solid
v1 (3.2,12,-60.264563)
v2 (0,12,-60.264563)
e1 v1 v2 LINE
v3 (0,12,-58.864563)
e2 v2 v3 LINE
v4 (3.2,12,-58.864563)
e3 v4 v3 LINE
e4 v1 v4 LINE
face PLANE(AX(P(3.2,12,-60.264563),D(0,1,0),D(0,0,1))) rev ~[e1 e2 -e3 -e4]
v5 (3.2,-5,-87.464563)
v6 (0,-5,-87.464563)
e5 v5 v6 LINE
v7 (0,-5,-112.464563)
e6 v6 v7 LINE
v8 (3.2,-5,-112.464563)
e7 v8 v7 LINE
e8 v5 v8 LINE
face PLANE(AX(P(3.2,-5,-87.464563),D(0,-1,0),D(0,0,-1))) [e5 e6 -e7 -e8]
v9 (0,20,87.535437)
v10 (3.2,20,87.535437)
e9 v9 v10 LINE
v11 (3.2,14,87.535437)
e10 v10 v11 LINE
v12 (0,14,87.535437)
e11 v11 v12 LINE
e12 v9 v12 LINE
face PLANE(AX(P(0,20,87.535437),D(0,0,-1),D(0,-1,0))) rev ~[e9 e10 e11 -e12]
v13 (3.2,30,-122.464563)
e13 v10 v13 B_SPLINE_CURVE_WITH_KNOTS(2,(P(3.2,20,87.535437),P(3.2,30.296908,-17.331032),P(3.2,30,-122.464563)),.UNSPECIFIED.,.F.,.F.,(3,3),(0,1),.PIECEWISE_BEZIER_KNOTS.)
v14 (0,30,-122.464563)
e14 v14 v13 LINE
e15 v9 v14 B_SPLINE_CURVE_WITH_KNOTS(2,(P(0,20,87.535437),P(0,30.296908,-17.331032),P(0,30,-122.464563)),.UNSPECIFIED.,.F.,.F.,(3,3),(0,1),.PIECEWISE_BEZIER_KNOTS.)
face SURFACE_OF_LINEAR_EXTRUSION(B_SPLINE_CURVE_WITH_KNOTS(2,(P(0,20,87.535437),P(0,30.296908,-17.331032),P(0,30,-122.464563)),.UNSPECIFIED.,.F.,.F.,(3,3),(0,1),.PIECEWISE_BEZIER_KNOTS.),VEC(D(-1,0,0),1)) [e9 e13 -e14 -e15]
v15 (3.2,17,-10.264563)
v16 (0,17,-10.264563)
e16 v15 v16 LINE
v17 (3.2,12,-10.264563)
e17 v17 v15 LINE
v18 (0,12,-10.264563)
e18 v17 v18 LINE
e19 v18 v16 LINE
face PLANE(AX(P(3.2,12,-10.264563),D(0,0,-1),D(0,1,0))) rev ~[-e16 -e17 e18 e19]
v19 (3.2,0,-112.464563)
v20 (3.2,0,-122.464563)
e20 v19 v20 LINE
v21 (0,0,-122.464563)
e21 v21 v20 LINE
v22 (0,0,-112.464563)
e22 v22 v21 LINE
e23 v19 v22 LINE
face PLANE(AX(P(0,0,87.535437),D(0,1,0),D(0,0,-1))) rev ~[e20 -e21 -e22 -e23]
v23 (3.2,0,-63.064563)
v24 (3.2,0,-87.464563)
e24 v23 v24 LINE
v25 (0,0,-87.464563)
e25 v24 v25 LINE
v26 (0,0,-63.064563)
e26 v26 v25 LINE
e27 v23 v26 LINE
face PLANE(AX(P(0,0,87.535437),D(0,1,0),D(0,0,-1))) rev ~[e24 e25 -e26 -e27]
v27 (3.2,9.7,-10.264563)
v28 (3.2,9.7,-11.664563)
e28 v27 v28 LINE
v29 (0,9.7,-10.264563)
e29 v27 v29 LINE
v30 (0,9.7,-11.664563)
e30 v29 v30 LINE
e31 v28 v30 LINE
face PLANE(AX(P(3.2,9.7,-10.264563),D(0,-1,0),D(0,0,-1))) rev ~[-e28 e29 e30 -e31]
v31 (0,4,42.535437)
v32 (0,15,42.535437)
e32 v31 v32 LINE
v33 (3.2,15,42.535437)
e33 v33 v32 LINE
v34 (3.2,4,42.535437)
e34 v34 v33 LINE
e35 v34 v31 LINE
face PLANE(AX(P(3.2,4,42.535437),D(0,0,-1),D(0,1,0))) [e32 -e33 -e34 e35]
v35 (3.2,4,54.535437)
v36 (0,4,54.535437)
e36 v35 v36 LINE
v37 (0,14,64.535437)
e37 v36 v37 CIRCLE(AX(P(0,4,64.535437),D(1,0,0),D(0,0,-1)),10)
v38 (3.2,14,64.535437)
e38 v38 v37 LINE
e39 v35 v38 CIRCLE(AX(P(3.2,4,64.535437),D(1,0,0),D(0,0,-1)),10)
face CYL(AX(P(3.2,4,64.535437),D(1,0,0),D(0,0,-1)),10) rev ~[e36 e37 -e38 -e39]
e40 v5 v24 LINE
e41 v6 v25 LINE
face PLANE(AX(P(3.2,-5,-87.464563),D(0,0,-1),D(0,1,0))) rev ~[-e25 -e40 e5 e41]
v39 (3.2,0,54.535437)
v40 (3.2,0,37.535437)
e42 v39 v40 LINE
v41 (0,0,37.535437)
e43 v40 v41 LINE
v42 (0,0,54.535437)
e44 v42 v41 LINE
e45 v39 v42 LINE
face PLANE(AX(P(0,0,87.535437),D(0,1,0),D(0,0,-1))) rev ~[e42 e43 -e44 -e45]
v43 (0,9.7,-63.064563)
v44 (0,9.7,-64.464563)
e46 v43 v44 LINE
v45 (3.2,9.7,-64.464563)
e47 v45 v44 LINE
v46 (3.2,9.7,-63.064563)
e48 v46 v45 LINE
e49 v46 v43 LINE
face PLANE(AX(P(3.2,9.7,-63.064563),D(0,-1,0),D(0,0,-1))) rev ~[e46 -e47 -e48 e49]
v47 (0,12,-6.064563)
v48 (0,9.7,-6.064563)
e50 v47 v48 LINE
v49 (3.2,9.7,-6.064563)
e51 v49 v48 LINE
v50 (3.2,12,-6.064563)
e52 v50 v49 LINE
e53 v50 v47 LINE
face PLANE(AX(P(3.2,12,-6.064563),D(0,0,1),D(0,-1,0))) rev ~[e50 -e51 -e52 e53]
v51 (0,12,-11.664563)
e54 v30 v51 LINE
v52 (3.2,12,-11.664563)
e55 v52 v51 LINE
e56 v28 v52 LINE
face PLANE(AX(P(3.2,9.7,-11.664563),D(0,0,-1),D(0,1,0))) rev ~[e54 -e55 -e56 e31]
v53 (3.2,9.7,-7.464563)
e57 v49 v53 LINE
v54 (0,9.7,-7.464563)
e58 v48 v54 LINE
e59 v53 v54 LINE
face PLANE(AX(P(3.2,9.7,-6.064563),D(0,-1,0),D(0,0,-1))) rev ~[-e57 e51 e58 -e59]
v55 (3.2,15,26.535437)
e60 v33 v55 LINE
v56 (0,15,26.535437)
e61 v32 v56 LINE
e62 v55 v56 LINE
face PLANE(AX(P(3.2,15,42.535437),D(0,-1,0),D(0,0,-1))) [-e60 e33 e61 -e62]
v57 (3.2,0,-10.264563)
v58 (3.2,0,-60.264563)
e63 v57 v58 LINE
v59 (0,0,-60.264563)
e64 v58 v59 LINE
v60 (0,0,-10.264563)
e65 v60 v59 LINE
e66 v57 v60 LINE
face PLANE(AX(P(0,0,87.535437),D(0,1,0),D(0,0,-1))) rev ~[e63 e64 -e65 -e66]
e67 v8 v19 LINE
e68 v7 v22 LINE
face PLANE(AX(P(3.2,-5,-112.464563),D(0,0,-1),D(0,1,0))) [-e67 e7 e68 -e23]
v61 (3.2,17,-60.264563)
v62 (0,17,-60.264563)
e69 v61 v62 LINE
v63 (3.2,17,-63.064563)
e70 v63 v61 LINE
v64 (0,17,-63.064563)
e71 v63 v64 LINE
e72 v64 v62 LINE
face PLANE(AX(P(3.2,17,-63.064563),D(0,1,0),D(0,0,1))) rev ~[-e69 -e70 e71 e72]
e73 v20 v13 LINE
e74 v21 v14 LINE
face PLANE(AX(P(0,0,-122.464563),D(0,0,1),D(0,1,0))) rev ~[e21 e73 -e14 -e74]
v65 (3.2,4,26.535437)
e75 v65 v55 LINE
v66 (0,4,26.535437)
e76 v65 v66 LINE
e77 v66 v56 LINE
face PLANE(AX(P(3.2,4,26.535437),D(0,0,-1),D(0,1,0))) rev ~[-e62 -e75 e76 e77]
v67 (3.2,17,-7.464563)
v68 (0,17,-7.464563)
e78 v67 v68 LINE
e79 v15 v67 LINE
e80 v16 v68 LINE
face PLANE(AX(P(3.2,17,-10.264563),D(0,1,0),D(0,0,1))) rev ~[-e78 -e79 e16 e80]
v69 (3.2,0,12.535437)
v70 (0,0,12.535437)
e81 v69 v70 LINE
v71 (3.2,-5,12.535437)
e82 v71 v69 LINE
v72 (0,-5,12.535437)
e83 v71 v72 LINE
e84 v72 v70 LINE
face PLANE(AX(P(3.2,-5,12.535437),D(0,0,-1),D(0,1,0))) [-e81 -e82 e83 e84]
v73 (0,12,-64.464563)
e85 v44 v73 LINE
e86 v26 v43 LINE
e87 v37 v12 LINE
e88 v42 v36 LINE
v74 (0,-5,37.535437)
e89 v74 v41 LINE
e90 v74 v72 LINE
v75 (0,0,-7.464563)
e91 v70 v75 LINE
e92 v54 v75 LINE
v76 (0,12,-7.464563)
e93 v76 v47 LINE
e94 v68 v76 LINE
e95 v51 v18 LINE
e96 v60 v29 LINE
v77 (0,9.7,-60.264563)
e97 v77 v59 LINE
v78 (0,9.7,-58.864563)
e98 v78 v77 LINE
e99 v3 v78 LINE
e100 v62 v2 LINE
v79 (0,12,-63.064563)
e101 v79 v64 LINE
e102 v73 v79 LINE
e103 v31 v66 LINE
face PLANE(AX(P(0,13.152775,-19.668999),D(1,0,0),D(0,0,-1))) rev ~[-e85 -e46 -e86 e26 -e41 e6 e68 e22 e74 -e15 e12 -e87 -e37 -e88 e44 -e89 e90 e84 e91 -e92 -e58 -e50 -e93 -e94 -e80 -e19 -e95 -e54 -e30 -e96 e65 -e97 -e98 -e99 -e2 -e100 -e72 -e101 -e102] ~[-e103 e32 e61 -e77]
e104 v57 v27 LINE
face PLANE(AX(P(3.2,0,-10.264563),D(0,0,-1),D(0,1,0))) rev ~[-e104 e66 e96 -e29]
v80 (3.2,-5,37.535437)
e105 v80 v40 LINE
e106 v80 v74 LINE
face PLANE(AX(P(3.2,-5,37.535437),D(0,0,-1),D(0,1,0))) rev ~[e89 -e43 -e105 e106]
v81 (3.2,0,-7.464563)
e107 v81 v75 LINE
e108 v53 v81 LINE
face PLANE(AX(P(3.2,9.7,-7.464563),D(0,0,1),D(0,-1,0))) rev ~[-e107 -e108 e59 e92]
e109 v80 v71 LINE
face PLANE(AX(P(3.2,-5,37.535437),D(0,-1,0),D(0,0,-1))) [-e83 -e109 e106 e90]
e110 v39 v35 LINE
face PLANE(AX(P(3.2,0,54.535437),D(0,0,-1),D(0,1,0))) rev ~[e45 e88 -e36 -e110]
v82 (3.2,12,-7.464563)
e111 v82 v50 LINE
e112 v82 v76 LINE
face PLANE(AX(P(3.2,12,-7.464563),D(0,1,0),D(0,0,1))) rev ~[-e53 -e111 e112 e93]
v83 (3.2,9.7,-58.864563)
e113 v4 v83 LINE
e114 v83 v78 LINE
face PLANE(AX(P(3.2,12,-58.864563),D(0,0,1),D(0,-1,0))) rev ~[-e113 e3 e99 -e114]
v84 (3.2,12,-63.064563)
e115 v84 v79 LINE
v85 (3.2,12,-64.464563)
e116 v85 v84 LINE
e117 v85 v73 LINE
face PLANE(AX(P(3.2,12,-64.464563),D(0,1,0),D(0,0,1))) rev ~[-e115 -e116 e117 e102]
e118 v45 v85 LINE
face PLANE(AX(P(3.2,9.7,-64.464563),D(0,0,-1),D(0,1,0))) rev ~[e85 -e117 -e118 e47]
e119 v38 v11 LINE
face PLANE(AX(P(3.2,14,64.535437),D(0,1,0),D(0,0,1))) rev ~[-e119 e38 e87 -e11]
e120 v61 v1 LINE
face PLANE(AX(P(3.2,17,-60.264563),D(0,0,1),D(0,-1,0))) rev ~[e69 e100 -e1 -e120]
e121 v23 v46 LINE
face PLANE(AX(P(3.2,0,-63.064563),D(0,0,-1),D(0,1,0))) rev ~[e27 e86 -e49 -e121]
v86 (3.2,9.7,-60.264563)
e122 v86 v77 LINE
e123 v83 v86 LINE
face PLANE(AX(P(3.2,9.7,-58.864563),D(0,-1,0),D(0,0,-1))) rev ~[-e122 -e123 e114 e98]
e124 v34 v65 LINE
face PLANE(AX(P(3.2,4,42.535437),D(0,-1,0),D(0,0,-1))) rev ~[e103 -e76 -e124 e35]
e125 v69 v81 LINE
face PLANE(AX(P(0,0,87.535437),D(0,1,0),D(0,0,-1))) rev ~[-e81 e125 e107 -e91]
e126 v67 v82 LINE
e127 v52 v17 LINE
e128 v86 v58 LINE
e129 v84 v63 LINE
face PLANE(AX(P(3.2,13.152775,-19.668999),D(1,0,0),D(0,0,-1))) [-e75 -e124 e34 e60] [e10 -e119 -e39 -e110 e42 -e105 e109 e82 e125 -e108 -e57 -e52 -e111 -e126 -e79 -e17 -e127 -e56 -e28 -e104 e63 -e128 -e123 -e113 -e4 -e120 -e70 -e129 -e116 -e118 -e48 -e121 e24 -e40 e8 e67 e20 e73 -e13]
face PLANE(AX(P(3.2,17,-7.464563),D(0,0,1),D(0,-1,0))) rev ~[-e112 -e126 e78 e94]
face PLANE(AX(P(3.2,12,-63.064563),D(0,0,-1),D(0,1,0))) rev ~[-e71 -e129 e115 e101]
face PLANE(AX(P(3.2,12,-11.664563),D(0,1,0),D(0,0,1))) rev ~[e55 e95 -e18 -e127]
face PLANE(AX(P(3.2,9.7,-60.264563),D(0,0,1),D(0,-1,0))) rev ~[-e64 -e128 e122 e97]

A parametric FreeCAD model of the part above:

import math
import FreeCAD as App
import Part
import Sketcher

V = App.Vector

doc = App.newDocument("Part")
body = doc.addObject("PartDesign::Body", "Body")

# Sketch on YZ plane
sketch1 = doc.addObject("Sketcher::SketchObject", "Sketch")
body.addObject(sketch1)
sketch1.AttachmentSupport = (doc.YZ_Plane, [""])
sketch1.MapMode = "FlatFace"
sketch1.addGeometry(Part.LineSegment(V(0, 87.535437, 0), V(0, -122.464563, 0)), False)
sketch1.addGeometry(Part.LineSegment(V(0, -122.464563, 0), V(30, -122.464563, 0)), False)
sketch1.addGeometry(Part.BSplineCurve([V(20, 87.535437, 0), V(30.296908, -17.331032, 0), V(30, -122.464563, 0)], [3, 3], [0, 1], False, 2, [1, 1, 1], False), False)
sketch1.addGeometry(Part.LineSegment(V(20, 87.535437, 0), V(0, 87.535437, 0)), False)
sketch1.addConstraint(Sketcher.Constraint("Block", 2))
sketch1.addConstraint(Sketcher.Constraint("Coincident", 0, 2, 1, 1))
sketch1.addConstraint(Sketcher.Constraint("Coincident", 1, 2, 2, 2))
sketch1.addConstraint(Sketcher.Constraint("Coincident", 2, 1, 3, 1))
sketch1.addConstraint(Sketcher.Constraint("Coincident", 3, 2, 0, 1))
sketch1.addConstraint(Sketcher.Constraint("Vertical", 0))
sketch1.addConstraint(Sketcher.Constraint("Horizontal", 1))
sketch1.addConstraint(Sketcher.Constraint("Horizontal", 3))
sketch1.addConstraint(Sketcher.Constraint("PointOnObject", 0, 2, -2))
pad1 = doc.addObject("PartDesign::Pad", "Pad")
body.addObject(pad1)
pad1.Profile = sketch1
pad1.Length = 3.2

# Sketch on YZ plane
sketch2 = doc.addObject("Sketcher::SketchObject", "Sketch001")
body.addObject(sketch2)
sketch2.AttachmentSupport = (doc.YZ_Plane, [""])
sketch2.MapMode = "FlatFace"
sketch2.AttachmentOffset = App.Placement(V(0, 0, 3.2), App.Rotation())
sketch2.addGeometry(Part.LineSegment(V(0, 87.535437, 0), V(0, 54.535437, 0)), False)
sketch2.addGeometry(Part.LineSegment(V(0, 54.535437, 0), V(4, 54.535437, 0)), False)
sketch2.addGeometry(Part.ArcOfCircle(Part.Circle(V(4, 64.535437, 0), V(0, 0, 1), 10), math.radians(-90), math.radians(0)), False)
sketch2.addGeometry(Part.LineSegment(V(14, 64.535437, 0), V(14, 87.535437, 0)), False)
sketch2.addGeometry(Part.LineSegment(V(14, 87.535437, 0), V(0, 87.535437, 0)), False)
sketch2.addConstraint(Sketcher.Constraint("Coincident", 0, 2, 1, 1))
sketch2.addConstraint(Sketcher.Constraint("Tangent", 1, 2, 2, 1))
sketch2.addConstraint(Sketcher.Constraint("Tangent", 2, 2, 3, 1))
sketch2.addConstraint(Sketcher.Constraint("Coincident", 3, 2, 4, 1))
sketch2.addConstraint(Sketcher.Constraint("Coincident", 4, 2, 0, 1))
sketch2.addConstraint(Sketcher.Constraint("Vertical", 0))
sketch2.addConstraint(Sketcher.Constraint("Horizontal", 1))
sketch2.addConstraint(Sketcher.Constraint("Vertical", 3))
sketch2.addConstraint(Sketcher.Constraint("Horizontal", 4))
sketch2.addConstraint(Sketcher.Constraint("PointOnObject", 0, 2, -2))
sketch2.addConstraint(Sketcher.Constraint("Radius", 2, 10.0))
sketch2.addConstraint(Sketcher.Constraint("DistanceX", 1, 1, 1, 2, 4.0))
sketch2.addConstraint(Sketcher.Constraint("DistanceY", 0, 2, 0, 1, 33.0))
sketch2.addConstraint(Sketcher.Constraint("DistanceY", -1, 1, 2, 3, 64.535437))
pocket1 = doc.addObject("PartDesign::Pocket", "Pocket")
body.addObject(pocket1)
pocket1.Profile = sketch2
pocket1.Length = 3.2

# Sketch on YZ plane
sketch3 = doc.addObject("Sketcher::SketchObject", "Sketch002")
body.addObject(sketch3)
sketch3.AttachmentSupport = (doc.YZ_Plane, [""])
sketch3.MapMode = "FlatFace"
sketch3.AttachmentOffset = App.Placement(V(0, 0, 3.2), App.Rotation())
sketch3.addGeometry(Part.LineSegment(V(0, 37.535437, 0), V(-5, 37.535437, 0)), False)
sketch3.addGeometry(Part.LineSegment(V(-5, 37.535437, 0), V(-5, 12.535437, 0)), False)
sketch3.addGeometry(Part.LineSegment(V(-5, 12.535437, 0), V(0, 12.535437, 0)), False)
sketch3.addGeometry(Part.LineSegment(V(0, 12.535437, 0), V(0, 37.535437, 0)), False)
sketch3.addGeometry(Part.LineSegment(V(0, -87.464563, 0), V(-5, -87.464563, 0)), False)
sketch3.addGeometry(Part.LineSegment(V(-5, -87.464563, 0), V(-5, -112.464563, 0)), False)
sketch3.addGeometry(Part.LineSegment(V(-5, -112.464563, 0), V(0, -112.464563, 0)), False)
sketch3.addGeometry(Part.LineSegment(V(0, -112.464563, 0), V(0, -87.464563, 0)), False)
sketch3.addConstraint(Sketcher.Constraint("Coincident", 0, 2, 1, 1))
sketch3.addConstraint(Sketcher.Constraint("Coincident", 1, 2, 2, 1))
sketch3.addConstraint(Sketcher.Constraint("Coincident", 2, 2, 3, 1))
sketch3.addConstraint(Sketcher.Constraint("Coincident", 3, 2, 0, 1))
sketch3.addConstraint(Sketcher.Constraint("Coincident", 4, 2, 5, 1))
sketch3.addConstraint(Sketcher.Constraint("Coincident", 5, 2, 6, 1))
sketch3.addConstraint(Sketcher.Constraint("Coincident", 6, 2, 7, 1))
sketch3.addConstraint(Sketcher.Constraint("Coincident", 7, 2, 4, 1))
sketch3.addConstraint(Sketcher.Constraint("Horizontal", 0))
sketch3.addConstraint(Sketcher.Constraint("Vertical", 1))
sketch3.addConstraint(Sketcher.Constraint("Horizontal", 2))
sketch3.addConstraint(Sketcher.Constraint("Vertical", 3))
sketch3.addConstraint(Sketcher.Constraint("Horizontal", 4))
sketch3.addConstraint(Sketcher.Constraint("Vertical", 5))
sketch3.addConstraint(Sketcher.Constraint("Horizontal", 6))
sketch3.addConstraint(Sketcher.Constraint("Vertical", 7))
sketch3.addConstraint(Sketcher.Constraint("PointOnObject", 2, 2, -2))
sketch3.addConstraint(Sketcher.Constraint("PointOnObject", 6, 2, -2))
sketch3.addConstraint(Sketcher.Constraint("Vertical", 1, 2, 4, 2))
sketch3.addConstraint(Sketcher.Constraint("Equal", 3, 5))
sketch3.addConstraint(Sketcher.Constraint("DistanceX", 0, 2, 0, 1, 5.0))
sketch3.addConstraint(Sketcher.Constraint("DistanceY", 1, 2, 1, 1, 25.0))
sketch3.addConstraint(Sketcher.Constraint("DistanceY", 4, 2, 1, 2, 100.0))
sketch3.addConstraint(Sketcher.Constraint("DistanceY", -1, 1, 0, 2, 37.535437))
pad2 = doc.addObject("PartDesign::Pad", "Pad001")
body.addObject(pad2)
pad2.Profile = sketch3
pad2.Length = 3.2
pad2.Reversed = True

# Sketch on YZ plane
sketch4 = doc.addObject("Sketcher::SketchObject", "Sketch003")
body.addObject(sketch4)
sketch4.AttachmentSupport = (doc.YZ_Plane, [""])
sketch4.MapMode = "FlatFace"
sketch4.AttachmentOffset = App.Placement(V(0, 0, 3.2), App.Rotation())
sketch4.addGeometry(Part.LineSegment(V(0, -7.464563, 0), V(0, -10.264563, 0)), False)
sketch4.addGeometry(Part.LineSegment(V(0, -10.264563, 0), V(9.7, -10.264563, 0)), False)
sketch4.addGeometry(Part.LineSegment(V(9.7, -10.264563, 0), V(9.7, -11.664563, 0)), False)
sketch4.addGeometry(Part.LineSegment(V(9.7, -11.664563, 0), V(12, -11.664563, 0)), False)
sketch4.addGeometry(Part.LineSegment(V(12, -11.664563, 0), V(12, -10.264563, 0)), False)
sketch4.addGeometry(Part.LineSegment(V(12, -10.264563, 0), V(17, -10.264563, 0)), False)
sketch4.addGeometry(Part.LineSegment(V(17, -10.264563, 0), V(17, -7.464563, 0)), False)
sketch4.addGeometry(Part.LineSegment(V(17, -7.464563, 0), V(12, -7.464563, 0)), False)
sketch4.addGeometry(Part.LineSegment(V(12, -7.464563, 0), V(12, -6.064563, 0)), False)
sketch4.addGeometry(Part.LineSegment(V(12, -6.064563, 0), V(9.7, -6.064563, 0)), False)
sketch4.addGeometry(Part.LineSegment(V(9.7, -6.064563, 0), V(9.7, -7.464563, 0)), False)
sketch4.addGeometry(Part.LineSegment(V(9.7, -7.464563, 0), V(0, -7.464563, 0)), False)
sketch4.addGeometry(Part.LineSegment(V(0, -60.264563, 0), V(0, -63.064563, 0)), False)
sketch4.addGeometry(Part.LineSegment(V(0, -63.064563, 0), V(9.7, -63.064563, 0)), False)
sketch4.addGeometry(Part.LineSegment(V(9.7, -63.064563, 0), V(9.7, -64.464563, 0)), False)
sketch4.addGeometry(Part.LineSegment(V(9.7, -64.464563, 0), V(12, -64.464563, 0)), False)
sketch4.addGeometry(Part.LineSegment(V(12, -64.464563, 0), V(12, -63.064563, 0)), False)
sketch4.addGeometry(Part.LineSegment(V(12, -63.064563, 0), V(17, -63.064563, 0)), False)
sketch4.addGeometry(Part.LineSegment(V(17, -63.064563, 0), V(17, -60.264563, 0)), False)
sketch4.addGeometry(Part.LineSegment(V(17, -60.264563, 0), V(12, -60.264563, 0)), False)
sketch4.addGeometry(Part.LineSegment(V(12, -60.264563, 0), V(12, -58.864563, 0)), False)
sketch4.addGeometry(Part.LineSegment(V(12, -58.864563, 0), V(9.7, -58.864563, 0)), False)
sketch4.addGeometry(Part.LineSegment(V(9.7, -58.864563, 0), V(9.7, -60.264563, 0)), False)
sketch4.addGeometry(Part.LineSegment(V(9.7, -60.264563, 0), V(0, -60.264563, 0)), False)
sketch4.addConstraint(Sketcher.Constraint("Coincident", 0, 2, 1, 1))
sketch4.addConstraint(Sketcher.Constraint("Coincident", 1, 2, 2, 1))
sketch4.addConstraint(Sketcher.Constraint("Coincident", 2, 2, 3, 1))
sketch4.addConstraint(Sketcher.Constraint("Coincident", 3, 2, 4, 1))
sketch4.addConstraint(Sketcher.Constraint("Coincident", 4, 2, 5, 1))
sketch4.addConstraint(Sketcher.Constraint("Coincident", 5, 2, 6, 1))
sketch4.addConstraint(Sketcher.Constraint("Coincident", 6, 2, 7, 1))
sketch4.addConstraint(Sketcher.Constraint("Coincident", 7, 2, 8, 1))
sketch4.addConstraint(Sketcher.Constraint("Coincident", 8, 2, 9, 1))
sketch4.addConstraint(Sketcher.Constraint("Coincident", 9, 2, 10, 1))
sketch4.addConstraint(Sketcher.Constraint("Coincident", 10, 2, 11, 1))
sketch4.addConstraint(Sketcher.Constraint("Coincident", 11, 2, 0, 1))
sketch4.addConstraint(Sketcher.Constraint("Coincident", 12, 2, 13, 1))
sketch4.addConstraint(Sketcher.Constraint("Coincident", 13, 2, 14, 1))
sketch4.addConstraint(Sketcher.Constraint("Coincident", 14, 2, 15, 1))
sketch4.addConstraint(Sketcher.Constraint("Coincident", 15, 2, 16, 1))
sketch4.addConstraint(Sketcher.Constraint("Coincident", 16, 2, 17, 1))
sketch4.addConstraint(Sketcher.Constraint("Coincident", 17, 2, 18, 1))
sketch4.addConstraint(Sketcher.Constraint("Coincident", 18, 2, 19, 1))
sketch4.addConstraint(Sketcher.Constraint("Coincident", 19, 2, 20, 1))
sketch4.addConstraint(Sketcher.Constraint("Coincident", 20, 2, 21, 1))
sketch4.addConstraint(Sketcher.Constraint("Coincident", 21, 2, 22, 1))
sketch4.addConstraint(Sketcher.Constraint("Coincident", 22, 2, 23, 1))
sketch4.addConstraint(Sketcher.Constraint("Coincident", 23, 2, 12, 1))
sketch4.addConstraint(Sketcher.Constraint("Vertical", 0))
sketch4.addConstraint(Sketcher.Constraint("Horizontal", 1))
sketch4.addConstraint(Sketcher.Constraint("Vertical", 2))
sketch4.addConstraint(Sketcher.Constraint("Horizontal", 3))
sketch4.addConstraint(Sketcher.Constraint("Vertical", 4))
sketch4.addConstraint(Sketcher.Constraint("Horizontal", 5))
sketch4.addConstraint(Sketcher.Constraint("Vertical", 6))
sketch4.addConstraint(Sketcher.Constraint("Horizontal", 7))
sketch4.addConstraint(Sketcher.Constraint("Vertical", 8))
sketch4.addConstraint(Sketcher.Constraint("Horizontal", 9))
sketch4.addConstraint(Sketcher.Constraint("Vertical", 10))
sketch4.addConstraint(Sketcher.Constraint("Horizontal", 11))
sketch4.addConstraint(Sketcher.Constraint("Vertical", 12))
sketch4.addConstraint(Sketcher.Constraint("Horizontal", 13))
sketch4.addConstraint(Sketcher.Constraint("Vertical", 14))
sketch4.addConstraint(Sketcher.Constraint("Horizontal", 15))
sketch4.addConstraint(Sketcher.Constraint("Vertical", 16))
sketch4.addConstraint(Sketcher.Constraint("Horizontal", 17))
sketch4.addConstraint(Sketcher.Constraint("Vertical", 18))
sketch4.addConstraint(Sketcher.Constraint("Horizontal", 19))
sketch4.addConstraint(Sketcher.Constraint("Vertical", 20))
sketch4.addConstraint(Sketcher.Constraint("Horizontal", 21))
sketch4.addConstraint(Sketcher.Constraint("Vertical", 22))
sketch4.addConstraint(Sketcher.Constraint("Horizontal", 23))
sketch4.addConstraint(Sketcher.Constraint("PointOnObject", 0, 2, -2))
sketch4.addConstraint(Sketcher.Constraint("PointOnObject", 12, 2, -2))
sketch4.addConstraint(Sketcher.Constraint("Horizontal", 1, 2, 4, 2))
sketch4.addConstraint(Sketcher.Constraint("Horizontal", 7, 2, 10, 2))
sketch4.addConstraint(Sketcher.Constraint("Horizontal", 13, 2, 16, 2))
sketch4.addConstraint(Sketcher.Constraint("Horizontal", 19, 2, 22, 2))
sketch4.addConstraint(Sketcher.Constraint("Vertical", 4, 2, 7, 2))
sketch4.addConstraint(Sketcher.Constraint("Vertical", 2, 2, 9, 2))
sketch4.addConstraint(Sketcher.Constraint("Vertical", 10, 2, 13, 2))
sketch4.addConstraint(Sketcher.Constraint("Vertical", 8, 2, 15, 2))
sketch4.addConstraint(Sketcher.Constraint("Vertical", 6, 2, 17, 2))
sketch4.addConstraint(Sketcher.Constraint("Vertical", 16, 2, 19, 2))
sketch4.addConstraint(Sketcher.Constraint("Vertical", 14, 2, 21, 2))
sketch4.addConstraint(Sketcher.Constraint("Equal", 4, 8))
sketch4.addConstraint(Sketcher.Constraint("Equal", 6, 12))
sketch4.addConstraint(Sketcher.Constraint("Equal", 10, 14))
sketch4.addConstraint(Sketcher.Constraint("Equal", 16, 20))
sketch4.addConstraint(Sketcher.Constraint("DistanceX", 5, 1, 5, 2, 5.0))
sketch4.addConstraint(Sketcher.Constraint("DistanceX", 1, 1, 1, 2, 9.7))
sketch4.addConstraint(Sketcher.Constraint("DistanceX", 3, 1, 3, 2, 2.3))
sketch4.addConstraint(Sketcher.Constraint("DistanceY", 0, 2, 0, 1, 2.8))
sketch4.addConstraint(Sketcher.Constraint("DistanceY", 2, 2, 2, 1, 1.4))
sketch4.addConstraint(Sketcher.Constraint("DistanceY", 12, 2, 2, 2, 51.4))
sketch4.addConstraint(Sketcher.Constraint("DistanceY", 0, 2, -1, 1, 10.264563))
pocket2 = doc.addObject("PartDesign::Pocket", "Pocket001")
body.addObject(pocket2)
pocket2.Profile = sketch4
pocket2.Length = 3.2

# Sketch on YZ plane
sketch5 = doc.addObject("Sketcher::SketchObject", "Sketch004")
body.addObject(sketch5)
sketch5.AttachmentSupport = (doc.YZ_Plane, [""])
sketch5.MapMode = "FlatFace"
sketch5.AttachmentOffset = App.Placement(V(0, 0, 3.2), App.Rotation())
sketch5.addGeometry(Part.LineSegment(V(15, 42.535437, 0), V(4, 42.535437, 0)), False)
sketch5.addGeometry(Part.LineSegment(V(4, 42.535437, 0), V(4, 26.535437, 0)), False)
sketch5.addGeometry(Part.LineSegment(V(4, 26.535437, 0), V(15, 26.535437, 0)), False)
sketch5.addGeometry(Part.LineSegment(V(15, 26.535437, 0), V(15, 42.535437, 0)), False)
sketch5.addConstraint(Sketcher.Constraint("Coincident", 0, 2, 1, 1))
sketch5.addConstraint(Sketcher.Constraint("Coincident", 1, 2, 2, 1))
sketch5.addConstraint(Sketcher.Constraint("Coincident", 2, 2, 3, 1))
sketch5.addConstraint(Sketcher.Constraint("Coincident", 3, 2, 0, 1))
sketch5.addConstraint(Sketcher.Constraint("Horizontal", 0))
sketch5.addConstraint(Sketcher.Constraint("Vertical", 1))
sketch5.addConstraint(Sketcher.Constraint("Horizontal", 2))
sketch5.addConstraint(Sketcher.Constraint("Vertical", 3))
sketch5.addConstraint(Sketcher.Constraint("DistanceX", 0, 2, 0, 1, 11.0))
sketch5.addConstraint(Sketcher.Constraint("DistanceY", 1, 2, 1, 1, 16.0))
sketch5.addConstraint(Sketcher.Constraint("DistanceX", -1, 1, 0, 2, 4.0))
sketch5.addConstraint(Sketcher.Constraint("DistanceY", -1, 1, 0, 2, 42.535437))
pocket3 = doc.addObject("PartDesign::Pocket", "Pocket002")
body.addObject(pocket3)
pocket3.Profile = sketch5
pocket3.Length = 3.2

doc.recompute()
